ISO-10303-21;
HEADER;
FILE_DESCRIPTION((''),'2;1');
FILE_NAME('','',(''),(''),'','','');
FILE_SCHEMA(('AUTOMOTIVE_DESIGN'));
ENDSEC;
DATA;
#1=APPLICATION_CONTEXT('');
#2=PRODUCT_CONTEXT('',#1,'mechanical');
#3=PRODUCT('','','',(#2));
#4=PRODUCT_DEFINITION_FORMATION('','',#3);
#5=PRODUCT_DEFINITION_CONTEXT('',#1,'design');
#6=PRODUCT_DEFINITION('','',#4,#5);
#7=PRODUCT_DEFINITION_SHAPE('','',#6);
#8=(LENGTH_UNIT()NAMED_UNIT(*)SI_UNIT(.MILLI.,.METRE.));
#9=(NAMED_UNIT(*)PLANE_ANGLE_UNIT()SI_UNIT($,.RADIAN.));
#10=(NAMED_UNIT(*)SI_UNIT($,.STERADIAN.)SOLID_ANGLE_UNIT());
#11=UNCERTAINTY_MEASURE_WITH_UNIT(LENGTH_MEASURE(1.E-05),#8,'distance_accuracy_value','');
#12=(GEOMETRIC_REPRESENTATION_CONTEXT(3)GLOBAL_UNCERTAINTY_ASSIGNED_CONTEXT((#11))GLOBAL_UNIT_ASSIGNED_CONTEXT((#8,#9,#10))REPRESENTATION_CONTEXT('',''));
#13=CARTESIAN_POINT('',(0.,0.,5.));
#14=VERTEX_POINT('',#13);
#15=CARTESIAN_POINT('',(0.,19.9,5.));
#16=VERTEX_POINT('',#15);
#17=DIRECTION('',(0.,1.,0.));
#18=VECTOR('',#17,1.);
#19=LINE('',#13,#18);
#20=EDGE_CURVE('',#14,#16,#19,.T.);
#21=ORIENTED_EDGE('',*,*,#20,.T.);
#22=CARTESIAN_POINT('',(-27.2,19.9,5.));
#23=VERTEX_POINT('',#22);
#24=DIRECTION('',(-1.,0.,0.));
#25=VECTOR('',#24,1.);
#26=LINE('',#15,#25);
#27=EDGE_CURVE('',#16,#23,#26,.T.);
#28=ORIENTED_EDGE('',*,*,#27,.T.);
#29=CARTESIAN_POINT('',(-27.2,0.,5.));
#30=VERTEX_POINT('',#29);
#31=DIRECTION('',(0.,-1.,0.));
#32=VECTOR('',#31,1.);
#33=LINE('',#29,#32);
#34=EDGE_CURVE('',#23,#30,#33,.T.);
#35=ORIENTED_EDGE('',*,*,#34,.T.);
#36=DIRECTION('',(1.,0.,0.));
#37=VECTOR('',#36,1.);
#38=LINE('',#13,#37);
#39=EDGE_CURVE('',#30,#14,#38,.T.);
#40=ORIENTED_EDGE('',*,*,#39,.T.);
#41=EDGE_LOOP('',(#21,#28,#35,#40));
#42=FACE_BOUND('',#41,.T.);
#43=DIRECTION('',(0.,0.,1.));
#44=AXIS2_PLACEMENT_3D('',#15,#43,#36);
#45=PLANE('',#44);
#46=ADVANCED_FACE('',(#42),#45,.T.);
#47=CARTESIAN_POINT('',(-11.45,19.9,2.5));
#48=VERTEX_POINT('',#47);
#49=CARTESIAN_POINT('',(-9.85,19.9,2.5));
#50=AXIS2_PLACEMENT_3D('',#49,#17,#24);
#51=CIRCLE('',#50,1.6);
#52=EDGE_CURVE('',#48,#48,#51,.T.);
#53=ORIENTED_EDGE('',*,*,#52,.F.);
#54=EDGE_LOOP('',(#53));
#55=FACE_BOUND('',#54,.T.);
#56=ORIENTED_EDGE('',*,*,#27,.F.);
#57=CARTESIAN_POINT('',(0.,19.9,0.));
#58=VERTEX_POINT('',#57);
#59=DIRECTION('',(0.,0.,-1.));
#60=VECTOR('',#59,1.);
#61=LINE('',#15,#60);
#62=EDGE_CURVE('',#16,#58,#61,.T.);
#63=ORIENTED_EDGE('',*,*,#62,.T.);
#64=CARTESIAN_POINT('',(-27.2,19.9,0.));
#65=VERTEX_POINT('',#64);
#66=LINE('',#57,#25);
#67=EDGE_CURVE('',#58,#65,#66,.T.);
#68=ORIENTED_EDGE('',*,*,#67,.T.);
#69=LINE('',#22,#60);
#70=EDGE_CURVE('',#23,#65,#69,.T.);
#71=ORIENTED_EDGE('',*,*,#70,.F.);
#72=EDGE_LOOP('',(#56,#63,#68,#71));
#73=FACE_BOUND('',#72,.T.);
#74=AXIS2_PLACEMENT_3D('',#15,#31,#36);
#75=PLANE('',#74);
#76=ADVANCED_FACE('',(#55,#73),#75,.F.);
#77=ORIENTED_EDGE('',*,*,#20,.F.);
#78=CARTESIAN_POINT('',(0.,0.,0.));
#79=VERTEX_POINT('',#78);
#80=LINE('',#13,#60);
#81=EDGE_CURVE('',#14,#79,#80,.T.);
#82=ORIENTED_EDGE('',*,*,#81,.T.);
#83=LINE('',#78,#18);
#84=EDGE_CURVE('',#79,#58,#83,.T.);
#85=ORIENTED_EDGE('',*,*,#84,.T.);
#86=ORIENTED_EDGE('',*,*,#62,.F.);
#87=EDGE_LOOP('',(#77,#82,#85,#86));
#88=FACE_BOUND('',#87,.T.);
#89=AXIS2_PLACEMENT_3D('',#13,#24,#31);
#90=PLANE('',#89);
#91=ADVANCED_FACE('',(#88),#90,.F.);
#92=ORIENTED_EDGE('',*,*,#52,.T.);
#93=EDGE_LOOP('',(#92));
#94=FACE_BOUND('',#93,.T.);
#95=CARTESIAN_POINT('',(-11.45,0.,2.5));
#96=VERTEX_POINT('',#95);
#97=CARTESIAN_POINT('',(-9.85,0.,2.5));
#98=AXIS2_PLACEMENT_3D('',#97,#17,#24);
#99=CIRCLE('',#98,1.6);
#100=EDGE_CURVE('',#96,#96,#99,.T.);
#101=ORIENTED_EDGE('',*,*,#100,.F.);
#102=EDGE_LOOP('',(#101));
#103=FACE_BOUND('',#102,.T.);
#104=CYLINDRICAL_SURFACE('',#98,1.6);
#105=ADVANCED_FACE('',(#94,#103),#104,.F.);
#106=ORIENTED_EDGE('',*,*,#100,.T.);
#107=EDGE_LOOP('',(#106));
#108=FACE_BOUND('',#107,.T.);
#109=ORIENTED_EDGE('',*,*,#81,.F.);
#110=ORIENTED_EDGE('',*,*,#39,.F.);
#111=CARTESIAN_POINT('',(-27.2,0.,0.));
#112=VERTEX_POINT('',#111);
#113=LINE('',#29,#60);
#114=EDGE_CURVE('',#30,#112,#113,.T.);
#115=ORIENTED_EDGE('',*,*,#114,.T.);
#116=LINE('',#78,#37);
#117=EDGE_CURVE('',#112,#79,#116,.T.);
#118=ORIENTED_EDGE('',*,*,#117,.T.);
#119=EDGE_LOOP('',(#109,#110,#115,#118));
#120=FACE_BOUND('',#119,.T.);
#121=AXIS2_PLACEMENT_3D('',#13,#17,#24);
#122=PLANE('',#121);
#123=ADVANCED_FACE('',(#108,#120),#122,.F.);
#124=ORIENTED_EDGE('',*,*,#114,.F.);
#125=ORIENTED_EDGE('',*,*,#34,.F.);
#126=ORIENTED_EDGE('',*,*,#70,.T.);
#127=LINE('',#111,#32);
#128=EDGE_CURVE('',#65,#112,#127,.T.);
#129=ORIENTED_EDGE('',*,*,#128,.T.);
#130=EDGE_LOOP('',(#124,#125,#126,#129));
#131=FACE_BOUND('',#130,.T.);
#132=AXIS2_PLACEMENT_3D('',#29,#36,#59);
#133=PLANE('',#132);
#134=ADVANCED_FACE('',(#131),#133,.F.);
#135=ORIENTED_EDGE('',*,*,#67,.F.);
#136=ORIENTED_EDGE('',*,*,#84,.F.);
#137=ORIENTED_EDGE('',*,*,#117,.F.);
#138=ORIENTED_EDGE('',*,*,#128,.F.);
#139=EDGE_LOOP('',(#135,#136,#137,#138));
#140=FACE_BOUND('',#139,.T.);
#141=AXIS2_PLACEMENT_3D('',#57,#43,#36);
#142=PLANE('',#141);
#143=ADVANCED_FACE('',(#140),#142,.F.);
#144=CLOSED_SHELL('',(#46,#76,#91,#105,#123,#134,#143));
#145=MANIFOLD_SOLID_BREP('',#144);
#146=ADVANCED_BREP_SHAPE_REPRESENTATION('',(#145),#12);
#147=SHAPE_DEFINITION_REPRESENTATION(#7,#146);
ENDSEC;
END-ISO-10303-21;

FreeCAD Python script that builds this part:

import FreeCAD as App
import Part
import Sketcher

V = App.Vector


def add_polygon(sketch, points):
    """Adds a closed chain of lines whose ends are joined by coincident constraints."""
    first, n = sketch.GeometryCount, len(points)
    for a, b in zip(points, points[1:] + points[:1]):
        sketch.addGeometry(Part.LineSegment(App.Vector(*a, 0), App.Vector(*b, 0)), False)
    for i in range(n):
        sketch.addConstraint(Sketcher.Constraint("Coincident", first + i, 2, first + (i + 1) % n, 1))

doc = App.newDocument("Part")
body = doc.addObject("PartDesign::Body", "Body")

sketch1 = body.newObject("Sketcher::SketchObject", "Sketch")
sketch1.AttachmentSupport = (doc.getObject("XY_Plane"), [""])
sketch1.MapMode = "FlatFace"
add_polygon(sketch1, [(-27.2, 19.9), (-27.2, 0), (0, 0), (0, 19.9)])
sketch1.addConstraint([
    Sketcher.Constraint("Vertical", 0),
    Sketcher.Constraint("Horizontal", 1),
    Sketcher.Constraint("Vertical", 2),
    Sketcher.Constraint("Horizontal", 3),
    Sketcher.Constraint("Coincident", 1, 2, -1, 1),
    Sketcher.Constraint("DistanceX", 1, 1, 1, 2, 27.2),
    Sketcher.Constraint("DistanceY", 0, 2, 0, 1, 19.9),
])
pad1 = body.newObject("PartDesign::Pad", "Pad")
pad1.Profile = sketch1
pad1.Length = 5

sketch2 = body.newObject("Sketcher::SketchObject", "Sketch001")
sketch2.AttachmentSupport = (doc.getObject("XZ_Plane"), [""])
sketch2.MapMode = "FlatFace"
sketch2.AttachmentOffset = App.Placement(V(0, 0, -19.9), App.Rotation())
sketch2.addGeometry(Part.Circle(V(-9.85, 2.5, 0), V(0, 0, 1), 1.6), False)
sketch2.addConstraint([
    Sketcher.Constraint("Diameter", 0, 3.2),
    Sketcher.Constraint("DistanceY", -1, 1, 0, 3, 2.5),
    Sketcher.Constraint("DistanceX", 0, 3, -1, 1, 9.85),
])
pocket1 = body.newObject("PartDesign::Pocket", "Pocket")
pocket1.Profile = sketch2
pocket1.Type = "ThroughAll"
pocket1.Reversed = True

doc.recompute()
